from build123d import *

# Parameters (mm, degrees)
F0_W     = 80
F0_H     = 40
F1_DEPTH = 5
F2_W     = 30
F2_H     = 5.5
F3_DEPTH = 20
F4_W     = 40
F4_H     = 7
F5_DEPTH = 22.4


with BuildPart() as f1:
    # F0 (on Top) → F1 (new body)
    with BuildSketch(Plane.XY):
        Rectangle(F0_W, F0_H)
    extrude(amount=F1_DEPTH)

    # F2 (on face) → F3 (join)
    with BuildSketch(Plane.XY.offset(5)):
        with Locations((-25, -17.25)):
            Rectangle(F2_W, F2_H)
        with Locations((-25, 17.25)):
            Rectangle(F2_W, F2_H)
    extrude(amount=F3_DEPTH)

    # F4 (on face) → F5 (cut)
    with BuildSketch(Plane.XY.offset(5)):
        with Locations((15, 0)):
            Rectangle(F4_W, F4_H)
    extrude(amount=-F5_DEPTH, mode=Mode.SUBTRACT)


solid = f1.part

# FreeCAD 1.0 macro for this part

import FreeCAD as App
import Part
import Sketcher
from FreeCAD import Vector
Q = App.Units.Quantity


def add_polygon(sketch, points):
    """Adds a closed chain of lines whose ends are joined by coincident constraints."""
    first, n = sketch.GeometryCount, len(points)
    for a, b in zip(points, points[1:] + points[:1]):
        sketch.addGeometry(Part.LineSegment(App.Vector(*a, 0), App.Vector(*b, 0)), False)
    for i in range(n):
        sketch.addConstraint(Sketcher.Constraint("Coincident", first + i, 2, first + (i + 1) % n, 1))

doc = App.newDocument("Part")
params = doc.addObject("Spreadsheet::Sheet", "Params")
for row, (alias, value) in enumerate([
    ("sketch1_width", "80 mm"),
    ("sketch1_height", "40 mm"),
    ("pad1_length", "5 mm"),
    ("sketch2_width", "30 mm"),
    ("sketch2_height", "5.5 mm"),
    ("pad2_length", "20 mm"),
    ("sketch3_width", "40 mm"),
    ("sketch3_height", "7 mm"),
    ("pocket1_length", "22.4 mm"),
], start=1):
    params.set(f"A{row}", alias)
    params.set(f"B{row}", "=" + value)
    params.setAlias(f"B{row}", alias)

body = doc.addObject("PartDesign::Body", "Body")

sketch1 = doc.addObject("Sketcher::SketchObject", "Sketch")
body.addObject(sketch1)
sketch1.AttachmentSupport = (doc.XY_Plane, [""])
sketch1.MapMode = "FlatFace"
add_polygon(sketch1, [(-40, 20), (-40, -20), (40, -20), (40, 20)])
sketch1.addConstraint([
    Sketcher.Constraint("Vertical", 0),
    Sketcher.Constraint("Horizontal", 1),
    Sketcher.Constraint("Vertical", 2),
    Sketcher.Constraint("Horizontal", 3),
    Sketcher.Constraint("Symmetric", 0, 2, 2, 2, -1, 1),
    Sketcher.Constraint("DistanceX", 1, 1, 1, 2, Q("80 mm")),
    Sketcher.Constraint("DistanceY", 0, 2, 0, 1, Q("40 mm")),
])
sketch1.setExpression("Constraints[9]", "Params.sketch1_width")
sketch1.setExpression("Constraints[10]", "Params.sketch1_height")
pad1 = doc.addObject("PartDesign::Pad", "Pad")
body.addObject(pad1)
pad1.Profile = sketch1
pad1.setExpression("Length", "Params.pad1_length")

sketch2 = doc.addObject("Sketcher::SketchObject", "Sketch001")
body.addObject(sketch2)
sketch2.AttachmentSupport = (doc.XY_Plane, [""])
sketch2.MapMode = "FlatFace"
sketch2.AttachmentOffset = App.Placement(Vector(0, 0, 5), App.Rotation())
add_polygon(sketch2, [(-40, -14.5), (-40, -20), (-10, -20), (-10, -14.5)])
add_polygon(sketch2, [(-40, 20), (-40, 14.5), (-10, 14.5), (-10, 20)])
sketch2.addConstraint([
    Sketcher.Constraint("Vertical", 0),
    Sketcher.Constraint("Horizontal", 1),
    Sketcher.Constraint("Vertical", 2),
    Sketcher.Constraint("Horizontal", 3),
    Sketcher.Constraint("Vertical", 4),
    Sketcher.Constraint("Horizontal", 5),
    Sketcher.Constraint("Vertical", 6),
    Sketcher.Constraint("Horizontal", 7),
    Sketcher.Constraint("Symmetric", 3, 2, 4, 2, -1),
    Sketcher.Constraint("Symmetric", 1, 2, 6, 2, -1),
    Sketcher.Constraint("DistanceX", 1, 1, 1, 2, Q("30 mm")),
    Sketcher.Constraint("DistanceY", 0, 2, 0, 1, Q("5.5 mm")),
    Sketcher.Constraint("DistanceX", 0, 2, -1, 1, Q("40 mm")),
    Sketcher.Constraint("DistanceY", 0, 2, -1, 1, Q("20 mm")),
])
sketch2.setExpression("Constraints[18]", "Params.sketch2_width")
sketch2.setExpression("Constraints[19]", "Params.sketch2_height")
pad2 = doc.addObject("PartDesign::Pad", "Pad001")
body.addObject(pad2)
pad2.Profile = sketch2
pad2.setExpression("Length", "Params.pad2_length")

sketch3 = doc.addObject("Sketcher::SketchObject", "Sketch002")
body.addObject(sketch3)
sketch3.AttachmentSupport = (doc.XY_Plane, [""])
sketch3.MapMode = "FlatFace"
sketch3.AttachmentOffset = App.Placement(Vector(0, 0, 5), App.Rotation())
add_polygon(sketch3, [(-5, 3.5), (-5, -3.5), (35, -3.5), (35, 3.5)])
sketch3.addConstraint([
    Sketcher.Constraint("Vertical", 0),
    Sketcher.Constraint("Horizontal", 1),
    Sketcher.Constraint("Vertical", 2),
    Sketcher.Constraint("Horizontal", 3),
    Sketcher.Constraint("DistanceX", 1, 1, 1, 2, Q("40 mm")),
    Sketcher.Constraint("DistanceY", 0, 2, 0, 1, Q("7 mm")),
    Sketcher.Constraint("DistanceX", 0, 2, -1, 1, Q("5 mm")),
    Sketcher.Constraint("DistanceY", 0, 2, -1, 1, Q("3.5 mm")),
])
sketch3.setExpression("Constraints[8]", "Params.sketch3_width")
sketch3.setExpression("Constraints[9]", "Params.sketch3_height")
pocket1 = doc.addObject("PartDesign::Pocket", "Pocket")
body.addObject(pocket1)
pocket1.Profile = sketch3
pocket1.setExpression("Length", "Params.pocket1_length")

doc.recompute()
